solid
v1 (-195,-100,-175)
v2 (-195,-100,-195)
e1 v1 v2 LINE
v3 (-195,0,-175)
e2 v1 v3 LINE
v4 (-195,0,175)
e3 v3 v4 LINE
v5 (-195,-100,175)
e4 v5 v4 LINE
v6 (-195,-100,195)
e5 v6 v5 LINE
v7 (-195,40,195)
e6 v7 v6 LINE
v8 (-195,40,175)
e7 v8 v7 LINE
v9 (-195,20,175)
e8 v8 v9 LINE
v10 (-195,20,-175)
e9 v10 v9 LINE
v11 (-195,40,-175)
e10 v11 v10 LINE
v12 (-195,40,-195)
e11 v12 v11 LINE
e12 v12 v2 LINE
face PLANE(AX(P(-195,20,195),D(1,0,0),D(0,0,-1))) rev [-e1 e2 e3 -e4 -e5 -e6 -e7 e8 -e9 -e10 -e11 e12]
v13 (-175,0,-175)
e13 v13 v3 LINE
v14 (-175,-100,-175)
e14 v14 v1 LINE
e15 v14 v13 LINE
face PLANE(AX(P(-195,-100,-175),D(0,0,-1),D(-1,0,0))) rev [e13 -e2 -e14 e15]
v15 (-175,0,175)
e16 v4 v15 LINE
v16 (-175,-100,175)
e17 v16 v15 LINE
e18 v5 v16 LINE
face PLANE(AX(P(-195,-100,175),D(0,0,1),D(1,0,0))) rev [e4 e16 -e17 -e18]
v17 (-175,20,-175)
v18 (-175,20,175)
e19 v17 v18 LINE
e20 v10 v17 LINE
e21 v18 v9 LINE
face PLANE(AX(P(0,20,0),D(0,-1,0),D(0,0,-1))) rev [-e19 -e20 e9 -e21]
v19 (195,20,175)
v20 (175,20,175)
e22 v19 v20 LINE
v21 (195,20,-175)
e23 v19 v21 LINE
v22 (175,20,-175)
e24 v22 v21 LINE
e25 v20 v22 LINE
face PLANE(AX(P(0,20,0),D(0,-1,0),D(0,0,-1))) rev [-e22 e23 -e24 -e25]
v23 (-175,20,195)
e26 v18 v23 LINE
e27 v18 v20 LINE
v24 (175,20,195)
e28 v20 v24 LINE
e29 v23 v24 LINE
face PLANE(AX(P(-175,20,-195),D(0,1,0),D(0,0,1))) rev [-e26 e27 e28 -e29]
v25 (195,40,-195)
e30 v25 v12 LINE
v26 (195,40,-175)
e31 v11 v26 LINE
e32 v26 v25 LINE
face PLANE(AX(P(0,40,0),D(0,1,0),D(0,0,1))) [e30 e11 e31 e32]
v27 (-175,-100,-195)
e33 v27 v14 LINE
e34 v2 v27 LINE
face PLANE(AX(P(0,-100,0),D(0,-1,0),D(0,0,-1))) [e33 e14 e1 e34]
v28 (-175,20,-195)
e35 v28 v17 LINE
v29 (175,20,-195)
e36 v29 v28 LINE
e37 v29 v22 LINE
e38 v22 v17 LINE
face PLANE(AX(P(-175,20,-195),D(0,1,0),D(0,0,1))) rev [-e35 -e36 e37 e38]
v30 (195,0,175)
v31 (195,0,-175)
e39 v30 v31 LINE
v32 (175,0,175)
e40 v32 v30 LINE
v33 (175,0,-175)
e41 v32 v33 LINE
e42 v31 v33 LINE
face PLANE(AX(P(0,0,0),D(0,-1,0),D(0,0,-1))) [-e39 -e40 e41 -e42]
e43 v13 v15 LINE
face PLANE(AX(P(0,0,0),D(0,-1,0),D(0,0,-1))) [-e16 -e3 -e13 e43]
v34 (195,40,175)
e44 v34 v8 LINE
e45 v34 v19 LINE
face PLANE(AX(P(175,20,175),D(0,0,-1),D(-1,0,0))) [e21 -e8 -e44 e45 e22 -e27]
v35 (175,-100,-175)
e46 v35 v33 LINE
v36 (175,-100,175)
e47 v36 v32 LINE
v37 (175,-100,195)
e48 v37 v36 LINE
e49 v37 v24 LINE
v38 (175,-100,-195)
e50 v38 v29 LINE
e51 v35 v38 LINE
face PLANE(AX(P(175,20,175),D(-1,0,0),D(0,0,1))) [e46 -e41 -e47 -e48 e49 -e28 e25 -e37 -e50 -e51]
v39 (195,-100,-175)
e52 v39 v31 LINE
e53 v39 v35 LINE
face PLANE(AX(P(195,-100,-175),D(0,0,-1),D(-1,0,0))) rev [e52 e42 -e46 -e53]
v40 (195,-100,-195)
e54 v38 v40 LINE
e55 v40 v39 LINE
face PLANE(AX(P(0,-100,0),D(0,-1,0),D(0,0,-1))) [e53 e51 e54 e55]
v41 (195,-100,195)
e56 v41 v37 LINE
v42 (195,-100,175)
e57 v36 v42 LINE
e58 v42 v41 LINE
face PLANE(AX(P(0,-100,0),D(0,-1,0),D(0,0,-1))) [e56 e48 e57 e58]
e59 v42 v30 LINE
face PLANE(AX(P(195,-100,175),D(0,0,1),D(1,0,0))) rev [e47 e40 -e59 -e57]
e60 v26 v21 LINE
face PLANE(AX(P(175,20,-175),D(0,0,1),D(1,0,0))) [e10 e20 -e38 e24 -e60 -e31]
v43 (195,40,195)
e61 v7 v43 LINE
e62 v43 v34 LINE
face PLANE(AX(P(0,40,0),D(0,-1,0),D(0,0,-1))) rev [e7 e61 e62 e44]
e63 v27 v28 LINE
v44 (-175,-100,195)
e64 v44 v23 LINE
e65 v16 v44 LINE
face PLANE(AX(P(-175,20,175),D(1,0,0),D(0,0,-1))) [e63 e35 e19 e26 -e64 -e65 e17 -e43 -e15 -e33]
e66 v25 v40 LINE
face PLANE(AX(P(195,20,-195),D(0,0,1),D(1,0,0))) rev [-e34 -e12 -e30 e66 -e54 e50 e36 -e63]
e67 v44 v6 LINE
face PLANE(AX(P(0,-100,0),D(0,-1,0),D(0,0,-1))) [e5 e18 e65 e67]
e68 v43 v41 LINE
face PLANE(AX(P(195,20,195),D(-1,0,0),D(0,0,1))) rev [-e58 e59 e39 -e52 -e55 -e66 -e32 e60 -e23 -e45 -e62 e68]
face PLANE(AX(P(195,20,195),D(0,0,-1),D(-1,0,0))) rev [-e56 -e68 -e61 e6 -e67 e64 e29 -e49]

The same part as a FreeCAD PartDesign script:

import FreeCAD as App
import Part
import Sketcher


def add_polygon(sketch, points):
    """Adds a closed chain of lines whose ends are joined by coincident constraints."""
    first, n = sketch.GeometryCount, len(points)
    for a, b in zip(points, points[1:] + points[:1]):
        sketch.addGeometry(Part.LineSegment(App.Vector(*a, 0), App.Vector(*b, 0)), False)
    for i in range(n):
        sketch.addConstraint(Sketcher.Constraint("Coincident", first + i, 2, first + (i + 1) % n, 1))

doc = App.newDocument("Part")
body = doc.addObject("PartDesign::Body", "Body")

sketch1 = body.newObject("Sketcher::SketchObject", "Sketch")
sketch1.AttachmentSupport = (doc.getObject("XZ_Plane"), [""])
sketch1.MapMode = "FlatFace"
add_polygon(sketch1, [(-195, -195), (-195, 195), (195, 195), (195, -195)])
add_polygon(sketch1, [(175, 175), (-175, 175), (-175, -175), (175, -175)])
sketch1.addConstraint([
    Sketcher.Constraint("Vertical", 0),
    Sketcher.Constraint("Horizontal", 1),
    Sketcher.Constraint("Vertical", 2),
    Sketcher.Constraint("Horizontal", 3),
    Sketcher.Constraint("Horizontal", 4),
    Sketcher.Constraint("Vertical", 5),
    Sketcher.Constraint("Horizontal", 6),
    Sketcher.Constraint("Vertical", 7),
    Sketcher.Constraint("Symmetric", 0, 2, 2, 2, -1, 1),
    Sketcher.Constraint("Symmetric", 4, 2, 6, 2, -1, 1),
    Sketcher.Constraint("Equal", 3, 0),
    Sketcher.Constraint("Equal", 6, 5),
    Sketcher.Constraint("DistanceX", 1, 1, 1, 2, 390.0),
    Sketcher.Constraint("DistanceX", 4, 2, 4, 1, 350.0),
])
pad1 = body.newObject("PartDesign::Pad", "Pad")
pad1.Profile = sketch1
pad1.Length = 20
pad1.Reversed = True

sketch2 = body.newObject("Sketcher::SketchObject", "Sketch001")
sketch2.AttachmentSupport = (doc.getObject("XZ_Plane"), [""])
sketch2.MapMode = "FlatFace"
add_polygon(sketch2, [(-195, 195), (-195, 175), (-175, 175), (-175, 195)])
add_polygon(sketch2, [(175, 195), (175, 175), (195, 175), (195, 195)])
add_polygon(sketch2, [(175, -175), (175, -195), (195, -195), (195, -175)])
add_polygon(sketch2, [(-195, -175), (-195, -195), (-175, -195), (-175, -175)])
sketch2.addConstraint([
    Sketcher.Constraint("Vertical", 0),
    Sketcher.Constraint("Horizontal", 1),
    Sketcher.Constraint("Vertical", 2),
    Sketcher.Constraint("Horizontal", 3),
    Sketcher.Constraint("Vertical", 4),
    Sketcher.Constraint("Horizontal", 5),
    Sketcher.Constraint("Vertical", 6),
    Sketcher.Constraint("Horizontal", 7),
    Sketcher.Constraint("Vertical", 8),
    Sketcher.Constraint("Horizontal", 9),
    Sketcher.Constraint("Vertical", 10),
    Sketcher.Constraint("Horizontal", 11),
    Sketcher.Constraint("Vertical", 12),
    Sketcher.Constraint("Horizontal", 13),
    Sketcher.Constraint("Vertical", 14),
    Sketcher.Constraint("Horizontal", 15),
    Sketcher.Constraint("Symmetric", 2, 2, 8, 2, -1, 1),
    Sketcher.Constraint("Symmetric", 0, 2, 10, 2, -1, 1),
    Sketcher.Constraint("Symmetric", 6, 2, 12, 2, -1, 1),
    Sketcher.Constraint("Symmetric", 4, 2, 14, 2, -1, 1),
    Sketcher.Constraint("Symmetric", 1, 2, 4, 2, -2),
    Sketcher.Constraint("Symmetric", 3, 2, 6, 2, -2),
    Sketcher.Constraint("Equal", 15, 0),
    Sketcher.Constraint("DistanceX", 1, 1, 1, 2, 20.0),
    Sketcher.Constraint("DistanceX", 0, 2, -1, 1, 195.0),
    Sketcher.Constraint("DistanceY", -1, 1, 0, 2, 175.0),
])
pad2 = body.newObject("PartDesign::Pad", "Pad001")
pad2.Profile = sketch2
pad2.Length = 100

sketch3 = body.newObject("Sketcher::SketchObject", "Sketch002")
sketch3.AttachmentSupport = (doc.getObject("XZ_Plane"), [""])
sketch3.MapMode = "FlatFace"
sketch3.AttachmentOffset = App.Placement(App.Vector(0, 0, -20), App.Rotation())
add_polygon(sketch3, [(-195, 175), (-195, 195), (195, 195), (195, 175)])
add_polygon(sketch3, [(-195, -195), (-195, -175), (195, -175), (195, -195)])
sketch3.addConstraint([
    Sketcher.Constraint("Vertical", 0),
    Sketcher.Constraint("Horizontal", 1),
    Sketcher.Constraint("Vertical", 2),
    Sketcher.Constraint("Horizontal", 3),
    Sketcher.Constraint("Vertical", 4),
    Sketcher.Constraint("Horizontal", 5),
    Sketcher.Constraint("Vertical", 6),
    Sketcher.Constraint("Horizontal", 7),
    Sketcher.Constraint("Symmetric", 2, 2, 4, 2, -1, 1),
    Sketcher.Constraint("Symmetric", 0, 2, 6, 2, -1, 1),
    Sketcher.Constraint("Vertical", 3, 2, 4, 2),
    Sketcher.Constraint("DistanceX", 1, 1, 1, 2, 390.0),
    Sketcher.Constraint("DistanceY", 0, 1, 0, 2, 20.0),
    Sketcher.Constraint("DistanceY", -1, 1, 0, 2, 195.0),
])
pad3 = body.newObject("PartDesign::Pad", "Pad002")
pad3.Profile = sketch3
pad3.Length = 20
pad3.Reversed = True

sketch4 = body.newObject("Sketcher::SketchObject", "Sketch003")
sketch4.AttachmentSupport = (doc.getObject("XY_Plane"), [""])
sketch4.MapMode = "FlatFace"
sketch4.AttachmentOffset = App.Placement(App.Vector(0, 0, 195), App.Rotation())
add_polygon(sketch4, [(-175, 20), (-175, 0), (175, 0), (175, 20)])
sketch4.addConstraint([
    Sketcher.Constraint("Vertical", 0),
    Sketcher.Constraint("Horizontal", 1),
    Sketcher.Constraint("Vertical", 2),
    Sketcher.Constraint("Horizontal", 3),
    Sketcher.Constraint("Symmetric", 0, 2, 1, 2, -1, 1),
    Sketcher.Constraint("DistanceX", 1, 1, 1, 2, 350.0),
    Sketcher.Constraint("DistanceY", 0, 2, 0, 1, 20.0),
])
pocket1 = body.newObject("PartDesign::Pocket", "Pocket")
pocket1.Profile = sketch4
pocket1.Type = "ThroughAll"
pocket1.Midplane = True

doc.recompute()
